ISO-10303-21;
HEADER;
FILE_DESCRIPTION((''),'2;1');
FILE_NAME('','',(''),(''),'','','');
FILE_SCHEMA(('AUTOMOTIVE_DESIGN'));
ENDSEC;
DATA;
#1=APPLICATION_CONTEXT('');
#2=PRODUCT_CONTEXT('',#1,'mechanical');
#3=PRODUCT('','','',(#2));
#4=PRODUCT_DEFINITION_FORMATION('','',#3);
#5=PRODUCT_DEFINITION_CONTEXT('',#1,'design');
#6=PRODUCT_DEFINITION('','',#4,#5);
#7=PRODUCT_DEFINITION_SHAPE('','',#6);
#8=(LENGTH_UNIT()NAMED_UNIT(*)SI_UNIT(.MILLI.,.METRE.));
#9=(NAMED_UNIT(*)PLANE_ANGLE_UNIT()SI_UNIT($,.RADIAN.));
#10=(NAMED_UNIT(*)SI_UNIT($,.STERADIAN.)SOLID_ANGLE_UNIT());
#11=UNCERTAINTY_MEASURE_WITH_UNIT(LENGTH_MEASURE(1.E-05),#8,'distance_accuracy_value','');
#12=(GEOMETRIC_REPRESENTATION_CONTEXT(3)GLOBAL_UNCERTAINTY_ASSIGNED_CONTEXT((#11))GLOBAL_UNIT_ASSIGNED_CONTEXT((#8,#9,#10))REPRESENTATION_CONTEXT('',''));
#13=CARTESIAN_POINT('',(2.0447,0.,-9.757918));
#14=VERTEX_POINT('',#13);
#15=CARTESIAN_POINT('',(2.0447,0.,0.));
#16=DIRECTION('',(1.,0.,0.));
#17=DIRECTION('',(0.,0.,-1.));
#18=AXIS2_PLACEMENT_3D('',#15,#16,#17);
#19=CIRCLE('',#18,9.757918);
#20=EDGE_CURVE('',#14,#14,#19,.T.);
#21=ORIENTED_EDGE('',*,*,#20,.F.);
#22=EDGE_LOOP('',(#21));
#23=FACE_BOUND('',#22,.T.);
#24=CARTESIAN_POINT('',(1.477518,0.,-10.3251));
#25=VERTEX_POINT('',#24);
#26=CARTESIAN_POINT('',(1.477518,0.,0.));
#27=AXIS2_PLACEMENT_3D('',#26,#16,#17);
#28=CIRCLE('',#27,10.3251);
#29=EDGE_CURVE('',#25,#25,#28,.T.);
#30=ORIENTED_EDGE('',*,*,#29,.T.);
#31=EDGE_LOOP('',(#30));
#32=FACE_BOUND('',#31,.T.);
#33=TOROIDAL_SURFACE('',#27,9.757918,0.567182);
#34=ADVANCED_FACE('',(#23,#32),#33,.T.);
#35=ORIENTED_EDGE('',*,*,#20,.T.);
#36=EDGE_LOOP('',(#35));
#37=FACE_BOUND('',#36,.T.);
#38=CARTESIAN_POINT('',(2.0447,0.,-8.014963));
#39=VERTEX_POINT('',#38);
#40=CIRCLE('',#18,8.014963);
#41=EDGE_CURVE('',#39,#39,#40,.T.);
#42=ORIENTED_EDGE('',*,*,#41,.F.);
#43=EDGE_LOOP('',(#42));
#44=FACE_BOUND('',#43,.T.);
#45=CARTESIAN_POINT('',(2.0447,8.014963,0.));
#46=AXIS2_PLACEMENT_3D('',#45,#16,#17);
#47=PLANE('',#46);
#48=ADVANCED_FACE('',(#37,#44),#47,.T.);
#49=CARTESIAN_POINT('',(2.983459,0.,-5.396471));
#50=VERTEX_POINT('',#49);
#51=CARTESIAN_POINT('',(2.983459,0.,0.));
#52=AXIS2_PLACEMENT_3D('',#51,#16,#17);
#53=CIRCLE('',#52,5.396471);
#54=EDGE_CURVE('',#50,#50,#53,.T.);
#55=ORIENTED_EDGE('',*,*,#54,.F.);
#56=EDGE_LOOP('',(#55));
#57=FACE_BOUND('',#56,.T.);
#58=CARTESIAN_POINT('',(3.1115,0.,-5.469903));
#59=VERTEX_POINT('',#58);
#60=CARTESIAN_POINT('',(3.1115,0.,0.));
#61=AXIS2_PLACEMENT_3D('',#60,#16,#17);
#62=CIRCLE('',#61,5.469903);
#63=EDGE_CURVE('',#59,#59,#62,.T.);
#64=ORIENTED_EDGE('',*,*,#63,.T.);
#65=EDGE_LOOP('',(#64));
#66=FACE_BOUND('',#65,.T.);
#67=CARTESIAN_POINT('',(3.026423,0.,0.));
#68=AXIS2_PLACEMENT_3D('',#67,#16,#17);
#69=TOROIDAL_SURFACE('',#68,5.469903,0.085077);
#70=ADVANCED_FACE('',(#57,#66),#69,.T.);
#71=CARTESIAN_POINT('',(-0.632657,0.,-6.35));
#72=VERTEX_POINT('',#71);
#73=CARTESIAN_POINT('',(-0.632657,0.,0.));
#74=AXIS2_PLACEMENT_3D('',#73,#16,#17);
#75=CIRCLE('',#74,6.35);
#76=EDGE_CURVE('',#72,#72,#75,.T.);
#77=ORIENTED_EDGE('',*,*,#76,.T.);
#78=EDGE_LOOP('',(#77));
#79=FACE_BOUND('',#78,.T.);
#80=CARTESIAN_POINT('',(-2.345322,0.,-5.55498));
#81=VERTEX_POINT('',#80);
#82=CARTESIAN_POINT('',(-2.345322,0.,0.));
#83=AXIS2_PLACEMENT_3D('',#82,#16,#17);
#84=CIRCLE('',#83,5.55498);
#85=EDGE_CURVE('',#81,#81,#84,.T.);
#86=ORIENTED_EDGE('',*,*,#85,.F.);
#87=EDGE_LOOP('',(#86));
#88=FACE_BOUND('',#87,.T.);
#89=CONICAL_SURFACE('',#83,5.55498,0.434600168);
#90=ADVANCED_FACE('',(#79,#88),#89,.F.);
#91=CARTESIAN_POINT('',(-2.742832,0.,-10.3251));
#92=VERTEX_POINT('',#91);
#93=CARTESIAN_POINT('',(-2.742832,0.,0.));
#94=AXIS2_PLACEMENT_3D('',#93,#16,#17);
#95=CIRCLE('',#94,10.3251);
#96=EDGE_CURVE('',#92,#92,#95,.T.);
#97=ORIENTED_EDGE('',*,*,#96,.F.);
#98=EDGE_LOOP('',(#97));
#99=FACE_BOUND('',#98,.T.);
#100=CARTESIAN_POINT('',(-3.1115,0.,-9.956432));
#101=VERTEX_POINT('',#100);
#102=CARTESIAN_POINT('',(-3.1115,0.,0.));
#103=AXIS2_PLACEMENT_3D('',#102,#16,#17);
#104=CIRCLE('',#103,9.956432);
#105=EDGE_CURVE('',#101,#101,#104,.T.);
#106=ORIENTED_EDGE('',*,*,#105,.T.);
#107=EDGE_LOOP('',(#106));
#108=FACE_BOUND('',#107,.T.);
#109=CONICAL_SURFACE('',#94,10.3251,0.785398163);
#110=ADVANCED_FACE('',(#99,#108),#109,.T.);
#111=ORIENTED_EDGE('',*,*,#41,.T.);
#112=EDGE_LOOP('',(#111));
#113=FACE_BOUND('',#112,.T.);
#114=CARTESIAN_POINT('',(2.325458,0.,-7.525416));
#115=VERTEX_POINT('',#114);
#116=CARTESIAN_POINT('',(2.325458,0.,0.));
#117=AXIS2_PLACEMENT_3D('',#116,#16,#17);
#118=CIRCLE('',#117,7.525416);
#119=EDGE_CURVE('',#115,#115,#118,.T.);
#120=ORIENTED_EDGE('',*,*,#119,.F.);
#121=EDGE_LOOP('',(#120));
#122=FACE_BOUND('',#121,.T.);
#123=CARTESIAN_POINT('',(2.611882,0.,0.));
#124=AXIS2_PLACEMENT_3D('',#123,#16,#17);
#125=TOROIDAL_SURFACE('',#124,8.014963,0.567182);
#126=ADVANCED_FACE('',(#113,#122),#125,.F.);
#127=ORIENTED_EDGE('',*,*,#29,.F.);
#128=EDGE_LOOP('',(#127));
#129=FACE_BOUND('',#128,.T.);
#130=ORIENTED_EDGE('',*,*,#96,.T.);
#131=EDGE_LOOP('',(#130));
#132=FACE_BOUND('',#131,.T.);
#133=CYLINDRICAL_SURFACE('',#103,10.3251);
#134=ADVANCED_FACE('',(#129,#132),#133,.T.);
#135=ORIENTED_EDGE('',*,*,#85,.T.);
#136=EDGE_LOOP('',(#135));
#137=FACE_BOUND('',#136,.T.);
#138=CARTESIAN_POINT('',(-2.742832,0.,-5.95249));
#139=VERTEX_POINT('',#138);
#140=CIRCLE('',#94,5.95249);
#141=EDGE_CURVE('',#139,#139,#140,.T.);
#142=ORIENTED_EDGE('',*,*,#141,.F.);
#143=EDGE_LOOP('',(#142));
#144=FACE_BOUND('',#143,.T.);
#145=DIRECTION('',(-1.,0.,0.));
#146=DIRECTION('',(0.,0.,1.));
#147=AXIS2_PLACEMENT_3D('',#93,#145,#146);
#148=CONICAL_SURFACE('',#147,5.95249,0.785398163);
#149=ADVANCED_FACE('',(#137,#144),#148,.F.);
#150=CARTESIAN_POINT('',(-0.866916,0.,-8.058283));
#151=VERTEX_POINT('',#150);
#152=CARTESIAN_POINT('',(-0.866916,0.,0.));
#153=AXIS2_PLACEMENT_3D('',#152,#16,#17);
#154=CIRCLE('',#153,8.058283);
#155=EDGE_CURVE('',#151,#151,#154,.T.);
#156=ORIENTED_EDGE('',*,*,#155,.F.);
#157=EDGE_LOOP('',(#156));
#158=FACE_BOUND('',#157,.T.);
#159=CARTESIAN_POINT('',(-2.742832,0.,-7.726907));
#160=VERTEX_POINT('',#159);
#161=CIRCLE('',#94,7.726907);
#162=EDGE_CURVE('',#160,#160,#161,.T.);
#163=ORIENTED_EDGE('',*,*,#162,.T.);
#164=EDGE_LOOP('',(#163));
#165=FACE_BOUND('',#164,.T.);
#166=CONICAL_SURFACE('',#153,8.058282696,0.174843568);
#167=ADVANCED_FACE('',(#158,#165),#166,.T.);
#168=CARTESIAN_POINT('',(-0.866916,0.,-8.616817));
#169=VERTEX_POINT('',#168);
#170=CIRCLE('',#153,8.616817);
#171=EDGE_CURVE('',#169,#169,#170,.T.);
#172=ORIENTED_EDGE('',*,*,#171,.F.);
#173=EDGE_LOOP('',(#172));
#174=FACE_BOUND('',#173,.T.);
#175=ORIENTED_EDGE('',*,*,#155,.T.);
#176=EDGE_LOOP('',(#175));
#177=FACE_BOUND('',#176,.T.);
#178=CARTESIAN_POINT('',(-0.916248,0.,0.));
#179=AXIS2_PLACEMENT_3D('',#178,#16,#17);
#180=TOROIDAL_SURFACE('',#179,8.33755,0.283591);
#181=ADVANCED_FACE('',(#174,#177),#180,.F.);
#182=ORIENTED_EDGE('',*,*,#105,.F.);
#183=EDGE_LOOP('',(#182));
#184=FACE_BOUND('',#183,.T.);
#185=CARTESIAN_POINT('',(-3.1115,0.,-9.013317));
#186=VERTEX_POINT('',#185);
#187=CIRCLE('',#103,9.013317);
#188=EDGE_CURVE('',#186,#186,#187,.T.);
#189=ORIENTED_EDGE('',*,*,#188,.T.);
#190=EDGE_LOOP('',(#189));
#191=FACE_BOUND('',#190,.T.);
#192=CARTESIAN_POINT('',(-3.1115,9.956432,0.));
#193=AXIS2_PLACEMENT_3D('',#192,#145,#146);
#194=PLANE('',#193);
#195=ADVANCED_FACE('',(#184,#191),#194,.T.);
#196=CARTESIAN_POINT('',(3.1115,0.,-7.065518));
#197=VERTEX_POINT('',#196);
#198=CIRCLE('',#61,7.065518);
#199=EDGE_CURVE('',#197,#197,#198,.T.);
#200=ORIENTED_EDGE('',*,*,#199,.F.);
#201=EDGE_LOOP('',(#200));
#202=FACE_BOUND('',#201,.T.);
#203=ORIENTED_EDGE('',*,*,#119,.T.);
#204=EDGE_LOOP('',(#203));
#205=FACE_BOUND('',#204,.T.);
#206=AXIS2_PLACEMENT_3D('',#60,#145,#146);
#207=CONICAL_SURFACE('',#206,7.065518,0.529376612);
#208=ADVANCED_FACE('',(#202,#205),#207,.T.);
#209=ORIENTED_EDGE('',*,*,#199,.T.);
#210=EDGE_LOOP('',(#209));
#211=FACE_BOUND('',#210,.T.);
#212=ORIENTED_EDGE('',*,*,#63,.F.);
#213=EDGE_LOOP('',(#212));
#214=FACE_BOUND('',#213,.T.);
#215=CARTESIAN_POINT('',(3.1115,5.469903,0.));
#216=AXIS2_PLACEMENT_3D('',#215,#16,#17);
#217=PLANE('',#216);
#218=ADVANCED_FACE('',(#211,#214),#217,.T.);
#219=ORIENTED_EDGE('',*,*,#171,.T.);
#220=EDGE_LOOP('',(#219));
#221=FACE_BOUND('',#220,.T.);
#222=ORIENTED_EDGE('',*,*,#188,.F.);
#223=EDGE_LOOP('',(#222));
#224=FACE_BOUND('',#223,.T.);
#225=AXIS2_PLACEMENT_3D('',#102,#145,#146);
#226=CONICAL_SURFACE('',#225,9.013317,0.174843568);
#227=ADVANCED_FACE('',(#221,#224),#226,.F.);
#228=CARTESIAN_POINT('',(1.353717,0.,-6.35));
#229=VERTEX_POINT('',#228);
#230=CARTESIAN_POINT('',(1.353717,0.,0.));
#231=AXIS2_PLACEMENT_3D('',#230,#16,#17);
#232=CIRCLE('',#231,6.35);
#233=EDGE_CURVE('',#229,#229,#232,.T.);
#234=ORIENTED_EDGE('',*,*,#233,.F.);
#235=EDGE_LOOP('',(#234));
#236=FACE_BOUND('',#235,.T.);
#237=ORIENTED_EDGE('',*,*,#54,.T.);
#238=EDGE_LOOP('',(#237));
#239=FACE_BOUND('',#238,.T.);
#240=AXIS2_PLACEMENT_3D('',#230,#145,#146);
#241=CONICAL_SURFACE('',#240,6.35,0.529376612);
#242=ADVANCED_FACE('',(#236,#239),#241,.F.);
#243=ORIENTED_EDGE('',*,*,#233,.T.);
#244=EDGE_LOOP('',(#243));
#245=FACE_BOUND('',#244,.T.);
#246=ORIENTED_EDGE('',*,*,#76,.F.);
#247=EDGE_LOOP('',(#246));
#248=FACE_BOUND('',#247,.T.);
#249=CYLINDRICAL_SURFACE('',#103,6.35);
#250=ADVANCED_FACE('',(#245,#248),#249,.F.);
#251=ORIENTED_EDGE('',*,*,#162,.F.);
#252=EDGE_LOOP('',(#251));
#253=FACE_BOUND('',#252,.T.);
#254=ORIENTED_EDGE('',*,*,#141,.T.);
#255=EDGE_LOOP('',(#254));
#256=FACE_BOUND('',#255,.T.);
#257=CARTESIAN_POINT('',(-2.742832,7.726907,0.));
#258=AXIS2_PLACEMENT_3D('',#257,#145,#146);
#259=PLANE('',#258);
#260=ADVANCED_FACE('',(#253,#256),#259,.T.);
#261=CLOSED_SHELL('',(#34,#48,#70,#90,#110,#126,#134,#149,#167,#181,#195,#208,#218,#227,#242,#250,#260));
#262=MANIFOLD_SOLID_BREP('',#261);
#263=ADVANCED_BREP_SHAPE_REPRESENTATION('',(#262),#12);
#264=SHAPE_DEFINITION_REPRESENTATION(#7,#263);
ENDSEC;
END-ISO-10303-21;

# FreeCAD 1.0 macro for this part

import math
import FreeCAD as App
import Part
import Sketcher

V = App.Vector
Q = App.Units.Quantity

doc = App.newDocument("Part")
params = doc.addObject("Spreadsheet::Sheet", "Params")
for row, (alias, value) in enumerate([
    ("revolution_angle", "360 deg"),
], start=1):
    params.set(f"A{row}", alias)
    params.set(f"B{row}", "=" + value)
    params.setAlias(f"B{row}", alias)

body = doc.addObject("PartDesign::Body", "Body")

# Sketch on XY plane
sketch1 = body.newObject("Sketcher::SketchObject", "Sketch")
sketch1.AttachmentSupport = (doc.getObject("XY_Plane"), [""])
sketch1.MapMode = "FlatFace"
sketch1.addGeometry([
    Part.LineSegment(V(-2.35, 5.55, 0), V(-0.63, 6.35, 0)),  # 0
    Part.LineSegment(V(-0.63, 6.35, 0), V(1.35, 6.35, 0)),  # 1
    Part.LineSegment(V(1.35, 6.35, 0), V(2.98, 5.4, 0)),  # 2
    Part.ArcOfCircle(Part.Circle(V(3.03, 5.47, 0), V(0, 0, 1), 0.09), math.radians(-120), math.radians(0)),  # 3
    Part.LineSegment(V(3.11, 5.47, 0), V(3.11, 7.07, 0)),  # 4
    Part.LineSegment(V(3.11, 7.07, 0), V(2.33, 7.53, 0)),  # 5
    Part.ArcOfCircle(Part.Circle(V(2.61, 8.01, 0), V(0, 0, 1), 0.57), math.radians(180), math.radians(240)),  # 6
    Part.LineSegment(V(2.04, 8.01, 0), V(2.04, 9.76, 0)),  # 7
    Part.ArcOfCircle(Part.Circle(V(1.48, 9.76, 0), V(0, 0, 1), 0.57), math.radians(0), math.radians(90)),  # 8
    Part.LineSegment(V(1.48, 10.33, 0), V(-2.74, 10.33, 0)),  # 9
    Part.LineSegment(V(-2.74, 10.33, 0), V(-3.11, 9.96, 0)),  # 10
    Part.LineSegment(V(-3.11, 9.96, 0), V(-3.11, 9.01, 0)),  # 11
    Part.LineSegment(V(-3.11, 9.01, 0), V(-0.87, 8.62, 0)),  # 12
    Part.ArcOfCircle(Part.Circle(V(-0.92, 8.34, 0), V(0, 0, 1), 0.28), math.radians(-80), math.radians(80)),  # 13
    Part.LineSegment(V(-0.87, 8.06, 0), V(-2.74, 7.73, 0)),  # 14
    Part.LineSegment(V(-2.74, 7.73, 0), V(-2.74, 5.95, 0)),  # 15
    Part.LineSegment(V(-2.74, 5.95, 0), V(-2.35, 5.55, 0)),  # 16
], False)
sketch1.addConstraint([
    Sketcher.Constraint("Coincident", 0, 2, 1, 1),
    Sketcher.Constraint("Coincident", 1, 2, 2, 1),
    Sketcher.Constraint("Tangent", 2, 2, 3, 1),
    Sketcher.Constraint("Tangent", 3, 2, 4, 1),
    Sketcher.Constraint("Coincident", 4, 2, 5, 1),
    Sketcher.Constraint("Tangent", 5, 2, 6, 2),
    Sketcher.Constraint("Tangent", 6, 1, 7, 1),
    Sketcher.Constraint("Tangent", 7, 2, 8, 1),
    Sketcher.Constraint("Tangent", 8, 2, 9, 1),
    Sketcher.Constraint("Coincident", 9, 2, 10, 1),
    Sketcher.Constraint("Coincident", 10, 2, 11, 1),
    Sketcher.Constraint("Coincident", 11, 2, 12, 1),
    Sketcher.Constraint("Tangent", 12, 2, 13, 2),
    Sketcher.Constraint("Tangent", 13, 1, 14, 1),
    Sketcher.Constraint("Coincident", 14, 2, 15, 1),
    Sketcher.Constraint("Coincident", 15, 2, 16, 1),
    Sketcher.Constraint("Coincident", 16, 2, 0, 1),
    Sketcher.Constraint("Horizontal", 1),
    Sketcher.Constraint("Vertical", 4),
    Sketcher.Constraint("Vertical", 7),
    Sketcher.Constraint("Horizontal", 9),
    Sketcher.Constraint("Vertical", 11),
    Sketcher.Constraint("Vertical", 15),
    Sketcher.Constraint("Equal", 6, 8),
    Sketcher.Constraint("Parallel", 2, 5),
    Sketcher.Constraint("Perpendicular", 10, 16),
    Sketcher.Constraint("Vertical", 12, 2, 13, 1),
    Sketcher.Constraint("Vertical", 9, 2, 14, 2),
    Sketcher.Constraint("Equal", 0, 2),
    Sketcher.Constraint("Angle", 10, Q("-135 deg")),
    Sketcher.Constraint("DistanceY", -1, 1, 0, 2, Q("6.35 mm")),
    Sketcher.Constraint("Radius", 6, Q("0.567182 mm")),
    Sketcher.Constraint("Radius", 13, Q("0.283591 mm")),
    Sketcher.Constraint("Radius", 3, Q("0.085077 mm")),
    Sketcher.Constraint("DistanceX", 9, 2, 9, 1, Q("4.22035 mm")),
    Sketcher.Constraint("DistanceX", -1, 1, 3, 2, Q("3.1115 mm")),
    Sketcher.Constraint("DistanceX", -1, 1, 6, 1, Q("2.0447 mm")),
    Sketcher.Constraint("DistanceY", -1, 1, 8, 2, Q("10.3251 mm")),
    Sketcher.Constraint("DistanceX", 10, 2, -1, 1, Q("3.1115 mm")),
    Sketcher.Constraint("DistanceX", 1, 2, 8, 3, Q("0.123801 mm")),
    Sketcher.Constraint("DistanceY", 4, 2, 7, 2, Q("2.6924 mm")),
    Sketcher.Constraint("DistanceY", 11, 2, 8, 3, Q("0.744601 mm")),
    Sketcher.Constraint("DistanceY", 12, 2, 11, 2, Q("0.3965 mm")),
    Sketcher.Constraint("Distance", 14, Q("1.904959 mm")),
    Sketcher.Constraint("DistanceX", 1, 1, 1, 2, Q("1.986374 mm")),
    Sketcher.Constraint("DistanceY", 4, 1, 4, 2, Q("1.595615 mm")),
    Sketcher.Constraint("DistanceY", 15, 2, 15, 1, Q("1.774417 mm")),
])
revolution = body.newObject("PartDesign::Revolution", "Revolution")
revolution.Profile = sketch1
revolution.ReferenceAxis = (sketch1, ["H_Axis"])
revolution.setExpression("Angle", "Params.revolution_angle")

doc.recompute()
